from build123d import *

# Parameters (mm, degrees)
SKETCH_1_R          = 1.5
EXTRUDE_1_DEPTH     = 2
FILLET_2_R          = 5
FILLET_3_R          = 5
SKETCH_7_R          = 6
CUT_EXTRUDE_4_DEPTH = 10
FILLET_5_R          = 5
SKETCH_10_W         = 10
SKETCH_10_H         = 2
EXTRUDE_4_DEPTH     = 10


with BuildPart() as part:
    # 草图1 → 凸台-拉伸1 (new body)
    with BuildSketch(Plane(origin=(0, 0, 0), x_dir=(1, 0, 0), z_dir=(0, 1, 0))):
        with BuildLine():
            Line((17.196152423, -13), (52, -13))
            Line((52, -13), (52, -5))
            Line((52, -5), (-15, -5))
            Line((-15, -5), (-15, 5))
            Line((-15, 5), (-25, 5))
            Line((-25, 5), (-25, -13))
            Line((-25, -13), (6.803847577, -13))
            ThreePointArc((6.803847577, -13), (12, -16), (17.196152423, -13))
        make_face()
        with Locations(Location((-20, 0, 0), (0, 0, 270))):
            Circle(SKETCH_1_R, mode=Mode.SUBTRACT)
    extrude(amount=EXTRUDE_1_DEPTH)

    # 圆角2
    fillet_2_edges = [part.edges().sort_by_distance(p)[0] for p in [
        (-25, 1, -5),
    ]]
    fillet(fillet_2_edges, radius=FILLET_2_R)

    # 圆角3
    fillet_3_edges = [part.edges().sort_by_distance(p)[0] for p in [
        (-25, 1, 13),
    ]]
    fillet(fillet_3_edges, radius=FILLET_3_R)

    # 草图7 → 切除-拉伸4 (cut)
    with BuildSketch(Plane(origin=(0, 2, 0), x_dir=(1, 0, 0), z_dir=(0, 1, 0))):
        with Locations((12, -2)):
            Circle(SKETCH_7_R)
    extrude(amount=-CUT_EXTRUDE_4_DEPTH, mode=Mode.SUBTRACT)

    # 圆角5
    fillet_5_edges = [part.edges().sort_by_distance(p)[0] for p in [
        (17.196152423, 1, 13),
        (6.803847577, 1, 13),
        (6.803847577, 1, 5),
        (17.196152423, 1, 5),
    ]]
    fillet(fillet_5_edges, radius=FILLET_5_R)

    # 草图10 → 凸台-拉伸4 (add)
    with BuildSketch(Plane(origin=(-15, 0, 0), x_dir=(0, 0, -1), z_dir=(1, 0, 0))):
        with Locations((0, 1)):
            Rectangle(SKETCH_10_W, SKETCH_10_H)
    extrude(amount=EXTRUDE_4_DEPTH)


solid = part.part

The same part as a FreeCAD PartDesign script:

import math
import FreeCAD as App
import Part
import Sketcher

V = App.Vector


def edges_at(feature, points):
    """Names of the edges that pass closest to the given points."""
    edges = feature.Shape.Edges
    near = lambda p: min(range(len(edges)), key=lambda i: edges[i].distToShape(Part.Vertex(*p))[0])
    return sorted({f"Edge{near(p) + 1}" for p in points})

doc = App.newDocument("Part")
params = doc.addObject("Spreadsheet::Sheet", "Params")
for row, (alias, value) in enumerate([
    ("sketch1_diameter", "3 mm"),
    ("sketch1_radius", "6 mm"),
    ("sketch1_width", "67 mm"),
    ("sketch1_width2", "10 mm"),
    ("sketch1_height", "8 mm"),
    ("pad1_length", "2 mm"),
    ("fillet_radius", "5 mm"),
    ("fillet2_radius", "5 mm"),
    ("sketch2_diameter", "12 mm"),
    ("pocket1_length", "10 mm"),
    ("fillet3_radius", "5 mm"),
    ("sketch3_width", "2 mm"),
    ("sketch3_height", "10 mm"),
    ("pad2_length", "10 mm"),
], start=1):
    params.set(f"A{row}", alias)
    params.set(f"B{row}", "=" + value)
    params.setAlias(f"B{row}", alias)

body = doc.addObject("PartDesign::Body", "Body")

# Sketch on XZ plane
sketch1 = doc.addObject("Sketcher::SketchObject", "Sketch")
body.addObject(sketch1)
sketch1.AttachmentSupport = (doc.XZ_Plane, [""])
sketch1.MapMode = "FlatFace"
sketch1.addGeometry(Part.LineSegment(V(17.2, 13, 0), V(52, 13, 0)), False)
sketch1.addGeometry(Part.LineSegment(V(52, 13, 0), V(52, 5, 0)), False)
sketch1.addGeometry(Part.LineSegment(V(52, 5, 0), V(-15, 5, 0)), False)
sketch1.addGeometry(Part.LineSegment(V(-15, 5, 0), V(-15, -5, 0)), False)
sketch1.addGeometry(Part.LineSegment(V(-15, -5, 0), V(-25, -5, 0)), False)
sketch1.addGeometry(Part.LineSegment(V(-25, -5, 0), V(-25, 13, 0)), False)
sketch1.addGeometry(Part.LineSegment(V(-25, 13, 0), V(6.8, 13, 0)), False)
sketch1.addGeometry(Part.ArcOfCircle(Part.Circle(V(12, 10, 0), V(0, 0, 1), 6), math.radians(30), math.radians(150)), False)
sketch1.addGeometry(Part.Circle(V(-20, 0, 0), V(0, 0, 1), 1.5), False)
sketch1.addConstraint(Sketcher.Constraint("Coincident", 0, 2, 1, 1))
sketch1.addConstraint(Sketcher.Constraint("Coincident", 1, 2, 2, 1))
sketch1.addConstraint(Sketcher.Constraint("Coincident", 2, 2, 3, 1))
sketch1.addConstraint(Sketcher.Constraint("Coincident", 3, 2, 4, 1))
sketch1.addConstraint(Sketcher.Constraint("Coincident", 4, 2, 5, 1))
sketch1.addConstraint(Sketcher.Constraint("Coincident", 5, 2, 6, 1))
sketch1.addConstraint(Sketcher.Constraint("Coincident", 6, 2, 7, 2))
sketch1.addConstraint(Sketcher.Constraint("Coincident", 7, 1, 0, 1))
sketch1.addConstraint(Sketcher.Constraint("Horizontal", 0))
sketch1.addConstraint(Sketcher.Constraint("Vertical", 1))
sketch1.addConstraint(Sketcher.Constraint("Horizontal", 2))
sketch1.addConstraint(Sketcher.Constraint("Vertical", 3))
sketch1.addConstraint(Sketcher.Constraint("Horizontal", 4))
sketch1.addConstraint(Sketcher.Constraint("Vertical", 5))
sketch1.addConstraint(Sketcher.Constraint("Horizontal", 6))
sketch1.addConstraint(Sketcher.Constraint("PointOnObject", 8, 3, -1))
sketch1.addConstraint(Sketcher.Constraint("Horizontal", 0, 2, 5, 2))
sketch1.addConstraint(Sketcher.Constraint("Equal", 4, 3))
sketch1.addConstraint(Sketcher.Constraint("Diameter", 8, 3.0))
sketch1.addConstraint(Sketcher.Constraint("Radius", 7, 6.0))
sketch1.addConstraint(Sketcher.Constraint("DistanceX", 2, 2, 2, 1, 67.0))
sketch1.addConstraint(Sketcher.Constraint("DistanceX", 4, 2, 4, 1, 10.0))
sketch1.addConstraint(Sketcher.Constraint("DistanceY", 1, 2, 1, 1, 8.0))
sketch1.addConstraint(Sketcher.Constraint("DistanceX", -1, 1, 7, 3, 12.0))
sketch1.addConstraint(Sketcher.Constraint("DistanceY", -1, 1, 7, 3, 10.0))
sketch1.addConstraint(Sketcher.Constraint("DistanceX", 8, 3, -1, 1, 20.0))
sketch1.addConstraint(Sketcher.Constraint("DistanceX", -1, 1, 0, 2, 52.0))
sketch1.addConstraint(Sketcher.Constraint("DistanceY", -1, 1, 0, 2, 13.0))
sketch1.setExpression("Constraints[18]", "Params.sketch1_diameter")
sketch1.setExpression("Constraints[19]", "Params.sketch1_radius")
sketch1.setExpression("Constraints[20]", "Params.sketch1_width")
sketch1.setExpression("Constraints[21]", "Params.sketch1_width2")
sketch1.setExpression("Constraints[22]", "Params.sketch1_height")
pad1 = doc.addObject("PartDesign::Pad", "Pad")
body.addObject(pad1)
pad1.Profile = sketch1
pad1.setExpression("Length", "Params.pad1_length")
pad1.Reversed = True
doc.recompute()

fillet = doc.addObject("PartDesign::Fillet", "Fillet")
body.addObject(fillet)
fillet.Base = (pad1, edges_at(pad1, [(-25, 1, -5)]))
fillet.setExpression("Radius", "Params.fillet_radius")
doc.recompute()

fillet2 = doc.addObject("PartDesign::Fillet", "Fillet001")
body.addObject(fillet2)
fillet2.Base = (fillet, edges_at(fillet, [(-25, 1, 13)]))
fillet2.setExpression("Radius", "Params.fillet2_radius")

# Sketch on XZ plane
sketch2 = doc.addObject("Sketcher::SketchObject", "Sketch001")
body.addObject(sketch2)
sketch2.AttachmentSupport = (doc.XZ_Plane, [""])
sketch2.MapMode = "FlatFace"
sketch2.AttachmentOffset = App.Placement(V(0, 0, -2), App.Rotation())
sketch2.addGeometry(Part.Circle(V(12, 2, 0), V(0, 0, 1), 6), False)
sketch2.addConstraint(Sketcher.Constraint("Diameter", 0, 12.0))
sketch2.addConstraint(Sketcher.Constraint("DistanceX", -1, 1, 0, 3, 12.0))
sketch2.addConstraint(Sketcher.Constraint("DistanceY", -1, 1, 0, 3, 2.0))
sketch2.setExpression("Constraints[0]", "Params.sketch2_diameter")
pocket1 = doc.addObject("PartDesign::Pocket", "Pocket")
body.addObject(pocket1)
pocket1.Profile = sketch2
pocket1.setExpression("Length", "Params.pocket1_length")
pocket1.Reversed = True
doc.recompute()

fillet3 = doc.addObject("PartDesign::Fillet", "Fillet002")
body.addObject(fillet3)
fillet3.Base = (pocket1, edges_at(pocket1, [
    (17.196, 1, 13),
    (6.804, 1, 13),
    (6.804, 1, 5),
    (17.196, 1, 5),
]))
fillet3.setExpression("Radius", "Params.fillet3_radius")

# Sketch on YZ plane
sketch3 = doc.addObject("Sketcher::SketchObject", "Sketch002")
body.addObject(sketch3)
sketch3.AttachmentSupport = (doc.YZ_Plane, [""])
sketch3.MapMode = "FlatFace"
sketch3.AttachmentOffset = App.Placement(V(0, 0, -15), App.Rotation())
sketch3.addGeometry(Part.LineSegment(V(2, 5, 0), V(0, 5, 0)), False)
sketch3.addGeometry(Part.LineSegment(V(0, 5, 0), V(0, -5, 0)), False)
sketch3.addGeometry(Part.LineSegment(V(0, -5, 0), V(2, -5, 0)), False)
sketch3.addGeometry(Part.LineSegment(V(2, -5, 0), V(2, 5, 0)), False)
sketch3.addConstraint(Sketcher.Constraint("Coincident", 0, 2, 1, 1))
sketch3.addConstraint(Sketcher.Constraint("Coincident", 1, 2, 2, 1))
sketch3.addConstraint(Sketcher.Constraint("Coincident", 2, 2, 3, 1))
sketch3.addConstraint(Sketcher.Constraint("Coincident", 3, 2, 0, 1))
sketch3.addConstraint(Sketcher.Constraint("Horizontal", 0))
sketch3.addConstraint(Sketcher.Constraint("Vertical", 1))
sketch3.addConstraint(Sketcher.Constraint("Horizontal", 2))
sketch3.addConstraint(Sketcher.Constraint("Vertical", 3))
sketch3.addConstraint(Sketcher.Constraint("Symmetric", 0, 2, 1, 2, -1, 1))
sketch3.addConstraint(Sketcher.Constraint("DistanceX", 0, 2, 0, 1, 2.0))
sketch3.addConstraint(Sketcher.Constraint("DistanceY", 1, 2, 1, 1, 10.0))
sketch3.setExpression("Constraints[9]", "Params.sketch3_width")
sketch3.setExpression("Constraints[10]", "Params.sketch3_height")
pad2 = doc.addObject("PartDesign::Pad", "Pad001")
body.addObject(pad2)
pad2.Profile = sketch3
pad2.setExpression("Length", "Params.pad2_length")

doc.recompute()
